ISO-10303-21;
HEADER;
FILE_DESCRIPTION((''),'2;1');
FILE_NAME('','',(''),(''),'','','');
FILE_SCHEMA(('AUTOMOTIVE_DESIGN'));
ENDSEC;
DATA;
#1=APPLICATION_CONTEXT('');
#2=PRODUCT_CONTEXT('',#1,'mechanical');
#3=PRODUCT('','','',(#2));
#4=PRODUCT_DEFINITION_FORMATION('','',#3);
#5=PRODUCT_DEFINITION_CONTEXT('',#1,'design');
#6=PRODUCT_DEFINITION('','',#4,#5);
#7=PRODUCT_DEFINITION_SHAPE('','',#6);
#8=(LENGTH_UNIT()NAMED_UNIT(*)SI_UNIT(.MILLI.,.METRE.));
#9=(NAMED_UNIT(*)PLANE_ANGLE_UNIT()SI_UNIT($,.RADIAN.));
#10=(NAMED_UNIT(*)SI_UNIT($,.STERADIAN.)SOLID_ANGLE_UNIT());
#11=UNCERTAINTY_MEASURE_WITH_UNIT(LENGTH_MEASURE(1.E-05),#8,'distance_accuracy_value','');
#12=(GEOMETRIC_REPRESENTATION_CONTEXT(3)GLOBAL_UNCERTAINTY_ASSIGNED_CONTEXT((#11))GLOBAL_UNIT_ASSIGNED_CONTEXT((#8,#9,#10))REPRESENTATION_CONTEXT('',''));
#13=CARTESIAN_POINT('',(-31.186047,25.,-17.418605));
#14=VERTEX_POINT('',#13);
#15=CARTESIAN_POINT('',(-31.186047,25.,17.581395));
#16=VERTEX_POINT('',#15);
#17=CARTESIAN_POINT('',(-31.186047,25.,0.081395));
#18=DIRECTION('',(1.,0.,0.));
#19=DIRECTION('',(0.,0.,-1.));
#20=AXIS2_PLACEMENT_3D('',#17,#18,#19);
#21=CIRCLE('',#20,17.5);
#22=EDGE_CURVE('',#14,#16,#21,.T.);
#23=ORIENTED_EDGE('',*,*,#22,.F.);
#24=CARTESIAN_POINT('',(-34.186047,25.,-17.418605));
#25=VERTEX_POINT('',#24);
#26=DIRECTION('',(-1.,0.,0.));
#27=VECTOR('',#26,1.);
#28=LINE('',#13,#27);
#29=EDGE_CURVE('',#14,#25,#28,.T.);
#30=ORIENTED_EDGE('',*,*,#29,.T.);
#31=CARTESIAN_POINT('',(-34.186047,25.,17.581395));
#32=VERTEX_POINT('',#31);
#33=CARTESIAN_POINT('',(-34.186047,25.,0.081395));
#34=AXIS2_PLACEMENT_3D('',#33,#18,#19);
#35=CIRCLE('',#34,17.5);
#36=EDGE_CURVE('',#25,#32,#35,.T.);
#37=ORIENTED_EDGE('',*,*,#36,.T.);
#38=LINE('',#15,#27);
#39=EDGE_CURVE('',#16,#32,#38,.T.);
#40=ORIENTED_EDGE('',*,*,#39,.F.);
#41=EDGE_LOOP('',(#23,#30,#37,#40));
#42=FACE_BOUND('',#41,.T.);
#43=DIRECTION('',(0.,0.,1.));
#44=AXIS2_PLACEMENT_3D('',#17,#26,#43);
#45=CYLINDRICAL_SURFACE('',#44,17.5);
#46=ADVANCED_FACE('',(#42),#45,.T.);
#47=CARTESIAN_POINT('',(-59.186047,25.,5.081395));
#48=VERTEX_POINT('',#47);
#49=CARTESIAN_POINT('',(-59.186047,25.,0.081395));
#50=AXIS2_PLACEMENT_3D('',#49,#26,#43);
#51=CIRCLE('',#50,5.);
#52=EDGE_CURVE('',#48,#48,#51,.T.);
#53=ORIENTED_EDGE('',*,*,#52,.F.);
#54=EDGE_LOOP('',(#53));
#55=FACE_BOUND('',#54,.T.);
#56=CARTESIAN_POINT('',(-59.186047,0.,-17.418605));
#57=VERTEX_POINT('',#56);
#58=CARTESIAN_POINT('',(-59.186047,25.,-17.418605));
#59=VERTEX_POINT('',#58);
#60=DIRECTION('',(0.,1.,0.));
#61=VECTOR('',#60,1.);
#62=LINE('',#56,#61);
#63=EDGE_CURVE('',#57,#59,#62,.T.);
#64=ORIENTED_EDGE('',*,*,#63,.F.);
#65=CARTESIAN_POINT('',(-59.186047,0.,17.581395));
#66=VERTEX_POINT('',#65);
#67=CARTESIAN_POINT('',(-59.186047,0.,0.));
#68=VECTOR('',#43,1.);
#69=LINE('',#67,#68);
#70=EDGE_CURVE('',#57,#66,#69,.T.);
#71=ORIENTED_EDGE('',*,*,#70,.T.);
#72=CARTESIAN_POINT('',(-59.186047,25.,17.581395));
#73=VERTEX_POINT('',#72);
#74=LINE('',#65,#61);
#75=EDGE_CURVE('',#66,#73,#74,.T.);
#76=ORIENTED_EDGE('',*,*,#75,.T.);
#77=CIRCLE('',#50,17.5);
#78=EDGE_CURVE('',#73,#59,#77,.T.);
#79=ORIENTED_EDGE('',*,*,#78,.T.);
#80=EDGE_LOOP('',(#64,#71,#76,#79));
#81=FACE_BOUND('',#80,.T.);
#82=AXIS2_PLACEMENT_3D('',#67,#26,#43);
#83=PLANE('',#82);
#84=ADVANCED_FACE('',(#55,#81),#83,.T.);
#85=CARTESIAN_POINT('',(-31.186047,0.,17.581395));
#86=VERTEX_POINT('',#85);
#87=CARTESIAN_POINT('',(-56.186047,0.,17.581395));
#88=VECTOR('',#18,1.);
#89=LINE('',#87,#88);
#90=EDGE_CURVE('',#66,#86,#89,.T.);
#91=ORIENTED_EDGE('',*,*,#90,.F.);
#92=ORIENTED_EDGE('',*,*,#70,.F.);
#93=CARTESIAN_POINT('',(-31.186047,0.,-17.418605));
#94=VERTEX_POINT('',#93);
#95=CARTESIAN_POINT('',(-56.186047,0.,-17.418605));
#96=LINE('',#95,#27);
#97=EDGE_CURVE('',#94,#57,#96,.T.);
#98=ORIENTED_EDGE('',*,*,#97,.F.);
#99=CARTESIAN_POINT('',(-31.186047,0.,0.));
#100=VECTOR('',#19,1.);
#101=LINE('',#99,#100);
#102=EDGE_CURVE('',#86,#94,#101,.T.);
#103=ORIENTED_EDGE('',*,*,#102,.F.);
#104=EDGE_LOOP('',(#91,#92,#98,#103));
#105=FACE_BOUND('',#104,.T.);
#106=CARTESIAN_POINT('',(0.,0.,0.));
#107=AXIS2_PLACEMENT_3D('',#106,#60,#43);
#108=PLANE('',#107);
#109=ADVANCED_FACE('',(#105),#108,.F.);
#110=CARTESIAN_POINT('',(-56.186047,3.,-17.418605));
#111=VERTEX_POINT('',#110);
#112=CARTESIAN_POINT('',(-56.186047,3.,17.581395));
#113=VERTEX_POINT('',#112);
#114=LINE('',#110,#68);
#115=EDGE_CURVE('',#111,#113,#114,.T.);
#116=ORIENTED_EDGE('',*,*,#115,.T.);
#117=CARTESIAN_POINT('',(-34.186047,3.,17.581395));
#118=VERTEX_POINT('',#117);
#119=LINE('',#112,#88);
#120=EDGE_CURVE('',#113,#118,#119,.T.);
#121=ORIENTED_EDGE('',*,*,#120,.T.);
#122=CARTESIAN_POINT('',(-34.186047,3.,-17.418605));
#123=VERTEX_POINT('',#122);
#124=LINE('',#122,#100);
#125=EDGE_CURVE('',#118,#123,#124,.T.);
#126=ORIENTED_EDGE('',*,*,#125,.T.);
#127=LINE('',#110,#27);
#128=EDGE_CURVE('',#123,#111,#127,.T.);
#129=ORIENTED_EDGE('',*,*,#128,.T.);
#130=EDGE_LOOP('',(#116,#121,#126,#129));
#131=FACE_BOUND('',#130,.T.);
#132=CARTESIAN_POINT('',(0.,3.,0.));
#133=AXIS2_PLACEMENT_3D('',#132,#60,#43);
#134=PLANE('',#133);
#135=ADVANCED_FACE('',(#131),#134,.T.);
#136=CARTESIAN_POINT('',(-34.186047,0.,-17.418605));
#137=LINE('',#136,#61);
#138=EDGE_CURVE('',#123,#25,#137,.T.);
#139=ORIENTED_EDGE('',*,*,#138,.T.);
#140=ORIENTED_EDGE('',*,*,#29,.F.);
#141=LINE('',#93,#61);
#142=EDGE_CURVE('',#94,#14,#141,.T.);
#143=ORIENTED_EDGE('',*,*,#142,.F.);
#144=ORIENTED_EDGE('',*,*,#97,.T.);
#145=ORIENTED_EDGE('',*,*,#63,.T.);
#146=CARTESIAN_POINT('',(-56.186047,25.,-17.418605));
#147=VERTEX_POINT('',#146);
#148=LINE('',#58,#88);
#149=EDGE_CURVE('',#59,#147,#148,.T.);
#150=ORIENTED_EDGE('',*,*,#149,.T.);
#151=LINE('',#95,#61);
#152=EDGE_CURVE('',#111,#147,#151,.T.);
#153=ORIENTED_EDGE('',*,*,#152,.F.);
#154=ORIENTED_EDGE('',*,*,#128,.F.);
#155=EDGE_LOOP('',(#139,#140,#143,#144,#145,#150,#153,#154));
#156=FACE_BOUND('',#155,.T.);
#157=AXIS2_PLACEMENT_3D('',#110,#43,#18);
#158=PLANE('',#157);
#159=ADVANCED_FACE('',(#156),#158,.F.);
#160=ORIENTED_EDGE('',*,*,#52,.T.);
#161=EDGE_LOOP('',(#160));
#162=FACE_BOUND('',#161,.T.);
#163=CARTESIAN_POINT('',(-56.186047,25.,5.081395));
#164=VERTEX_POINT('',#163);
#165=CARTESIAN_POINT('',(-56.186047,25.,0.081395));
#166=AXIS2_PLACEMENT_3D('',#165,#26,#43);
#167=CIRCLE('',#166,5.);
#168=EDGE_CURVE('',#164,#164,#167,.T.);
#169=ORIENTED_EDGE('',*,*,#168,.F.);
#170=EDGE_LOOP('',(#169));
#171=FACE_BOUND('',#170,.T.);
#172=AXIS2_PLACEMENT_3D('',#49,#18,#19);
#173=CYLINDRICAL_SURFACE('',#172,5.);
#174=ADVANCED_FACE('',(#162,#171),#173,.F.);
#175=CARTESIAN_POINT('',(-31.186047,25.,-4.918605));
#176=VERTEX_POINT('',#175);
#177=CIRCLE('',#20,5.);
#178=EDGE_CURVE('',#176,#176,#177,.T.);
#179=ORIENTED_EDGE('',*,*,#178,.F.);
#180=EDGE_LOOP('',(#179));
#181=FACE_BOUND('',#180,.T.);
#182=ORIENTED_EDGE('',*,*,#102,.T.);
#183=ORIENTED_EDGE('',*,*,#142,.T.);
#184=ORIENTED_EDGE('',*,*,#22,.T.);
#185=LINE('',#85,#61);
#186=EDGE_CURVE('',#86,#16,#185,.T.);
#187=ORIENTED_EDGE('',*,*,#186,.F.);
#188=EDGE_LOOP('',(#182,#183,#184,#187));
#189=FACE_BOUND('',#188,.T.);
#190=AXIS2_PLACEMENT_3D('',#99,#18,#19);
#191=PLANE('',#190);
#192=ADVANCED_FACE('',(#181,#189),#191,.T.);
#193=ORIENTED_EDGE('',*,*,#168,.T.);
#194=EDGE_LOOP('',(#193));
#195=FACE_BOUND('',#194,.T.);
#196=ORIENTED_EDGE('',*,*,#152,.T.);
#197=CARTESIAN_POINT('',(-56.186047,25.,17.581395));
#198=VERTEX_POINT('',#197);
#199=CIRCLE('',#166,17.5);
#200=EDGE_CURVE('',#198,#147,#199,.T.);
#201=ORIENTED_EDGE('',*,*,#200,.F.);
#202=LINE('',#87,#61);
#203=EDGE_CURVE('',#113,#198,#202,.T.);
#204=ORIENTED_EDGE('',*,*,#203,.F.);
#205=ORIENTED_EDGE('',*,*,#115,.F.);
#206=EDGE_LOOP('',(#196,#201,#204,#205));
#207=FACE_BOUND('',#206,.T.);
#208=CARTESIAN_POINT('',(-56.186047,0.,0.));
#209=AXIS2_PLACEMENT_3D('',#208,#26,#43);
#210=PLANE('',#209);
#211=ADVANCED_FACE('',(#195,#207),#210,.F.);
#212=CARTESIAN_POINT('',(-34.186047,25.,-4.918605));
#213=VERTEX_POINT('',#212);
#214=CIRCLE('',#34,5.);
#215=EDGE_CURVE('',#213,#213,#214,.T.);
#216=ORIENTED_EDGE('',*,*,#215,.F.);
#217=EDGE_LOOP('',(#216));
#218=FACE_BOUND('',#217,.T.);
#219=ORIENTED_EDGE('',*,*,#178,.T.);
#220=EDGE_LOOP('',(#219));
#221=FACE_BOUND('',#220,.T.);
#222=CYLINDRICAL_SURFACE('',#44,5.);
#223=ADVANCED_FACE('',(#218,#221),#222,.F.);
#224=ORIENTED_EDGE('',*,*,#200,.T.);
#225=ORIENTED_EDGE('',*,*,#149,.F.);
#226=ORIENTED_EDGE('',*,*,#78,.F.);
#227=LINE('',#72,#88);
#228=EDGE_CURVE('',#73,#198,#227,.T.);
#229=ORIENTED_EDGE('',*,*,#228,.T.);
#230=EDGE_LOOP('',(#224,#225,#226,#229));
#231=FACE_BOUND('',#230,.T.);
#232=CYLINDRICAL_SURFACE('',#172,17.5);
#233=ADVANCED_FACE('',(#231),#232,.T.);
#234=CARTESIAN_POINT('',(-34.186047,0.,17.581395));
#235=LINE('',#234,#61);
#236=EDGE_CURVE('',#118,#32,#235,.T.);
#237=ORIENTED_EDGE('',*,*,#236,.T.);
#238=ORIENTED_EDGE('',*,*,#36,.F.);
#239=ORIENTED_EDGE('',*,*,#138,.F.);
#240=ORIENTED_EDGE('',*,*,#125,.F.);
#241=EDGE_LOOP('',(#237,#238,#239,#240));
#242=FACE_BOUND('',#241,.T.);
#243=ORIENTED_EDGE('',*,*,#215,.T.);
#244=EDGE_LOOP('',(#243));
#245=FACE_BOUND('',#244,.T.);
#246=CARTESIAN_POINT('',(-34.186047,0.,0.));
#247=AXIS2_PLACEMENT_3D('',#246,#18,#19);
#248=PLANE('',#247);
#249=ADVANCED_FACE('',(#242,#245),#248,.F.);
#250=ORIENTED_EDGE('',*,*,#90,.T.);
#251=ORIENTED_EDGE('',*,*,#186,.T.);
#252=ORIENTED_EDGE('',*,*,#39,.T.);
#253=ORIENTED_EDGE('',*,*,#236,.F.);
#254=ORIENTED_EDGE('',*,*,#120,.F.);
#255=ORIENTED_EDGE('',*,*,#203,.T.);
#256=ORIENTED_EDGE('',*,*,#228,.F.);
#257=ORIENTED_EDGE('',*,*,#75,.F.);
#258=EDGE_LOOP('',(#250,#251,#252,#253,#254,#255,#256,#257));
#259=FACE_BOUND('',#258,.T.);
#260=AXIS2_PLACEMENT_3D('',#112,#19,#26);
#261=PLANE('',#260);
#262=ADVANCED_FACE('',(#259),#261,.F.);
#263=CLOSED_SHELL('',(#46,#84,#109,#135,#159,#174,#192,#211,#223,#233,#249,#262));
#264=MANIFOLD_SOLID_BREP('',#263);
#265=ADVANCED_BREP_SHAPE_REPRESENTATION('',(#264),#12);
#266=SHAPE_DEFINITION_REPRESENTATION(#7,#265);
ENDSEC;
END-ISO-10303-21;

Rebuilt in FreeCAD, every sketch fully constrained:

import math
import FreeCAD as App
import Part
import Sketcher

V = App.Vector
Q = App.Units.Quantity


def add_polygon(sketch, points):
    """Adds a closed chain of lines whose ends are joined by coincident constraints."""
    first, n = sketch.GeometryCount, len(points)
    for a, b in zip(points, points[1:] + points[:1]):
        sketch.addGeometry(Part.LineSegment(App.Vector(*a, 0), App.Vector(*b, 0)), False)
    for i in range(n):
        sketch.addConstraint(Sketcher.Constraint("Coincident", first + i, 2, first + (i + 1) % n, 1))

doc = App.newDocument("Part")
params = doc.addObject("Spreadsheet::Sheet", "Params")
for row, (alias, value) in enumerate([
    ("sketch1_width", "22 mm"),
    ("sketch1_height", "35 mm"),
    ("pad1_length", "3 mm"),
    ("sketch2_diameter", "10 mm"),
    ("sketch2_radius", "17.5 mm"),
    ("sketch2_width", "25 mm"),
    ("pad2_length", "3 mm"),
    ("sketch3_diameter", "10 mm"),
    ("sketch3_radius", "17.5 mm"),
    ("sketch3_width", "25 mm"),
    ("pad3_length", "3 mm"),
], start=1):
    params.set(f"A{row}", alias)
    params.set(f"B{row}", "=" + value)
    params.setAlias(f"B{row}", alias)

body = doc.addObject("PartDesign::Body", "Body")

# Sketch on XZ plane
sketch1 = body.newObject("Sketcher::SketchObject", "Sketch")
sketch1.AttachmentSupport = (doc.getObject("XZ_Plane"), [""])
sketch1.MapMode = "FlatFace"
add_polygon(sketch1, [(-56, -17), (-56, 18), (-34, 18), (-34, -17)])  # lines 0-3
sketch1.addConstraint([
    Sketcher.Constraint("Vertical", 0),
    Sketcher.Constraint("Horizontal", 1),
    Sketcher.Constraint("Vertical", 2),
    Sketcher.Constraint("Horizontal", 3),
    Sketcher.Constraint("DistanceX", 1, 1, 1, 2, Q("22 mm")),
    Sketcher.Constraint("DistanceY", 0, 1, 0, 2, Q("35 mm")),
    Sketcher.Constraint("DistanceX", 0, 2, -1, 1, Q("56.186047 mm")),
    Sketcher.Constraint("DistanceY", -1, 1, 0, 2, Q("17.581395 mm")),
])
sketch1.setExpression("Constraints[8]", "Params.sketch1_width")
sketch1.setExpression("Constraints[9]", "Params.sketch1_height")
pad1 = body.newObject("PartDesign::Pad", "Pad")
pad1.Profile = sketch1
pad1.setExpression("Length", "Params.pad1_length")
pad1.Reversed = True

# Sketch on YZ plane
sketch2 = body.newObject("Sketcher::SketchObject", "Sketch001")
sketch2.AttachmentSupport = (doc.getObject("YZ_Plane"), [""])
sketch2.MapMode = "FlatFace"
sketch2.AttachmentOffset = App.Placement(V(0, 0, -34.186047), App.Rotation())
sketch2.addGeometry([
    Part.ArcOfCircle(Part.Circle(V(25, 0, 0), V(0, 0, 1), 18), math.radians(-90), math.radians(90)),  # 0
    Part.LineSegment(V(25, 18, 0), V(0, 18, 0)),  # 1
    Part.LineSegment(V(0, 18, 0), V(0, -17, 0)),  # 2
    Part.LineSegment(V(0, -17, 0), V(25, -17, 0)),  # 3
    Part.Circle(V(25, 0, 0), V(0, 0, 1), 5),  # 4
], False)
sketch2.addConstraint([
    Sketcher.Constraint("Tangent", 0, 2, 1, 1),
    Sketcher.Constraint("Coincident", 1, 2, 2, 1),
    Sketcher.Constraint("Coincident", 2, 2, 3, 1),
    Sketcher.Constraint("Tangent", 3, 2, 0, 1),
    Sketcher.Constraint("Horizontal", 1),
    Sketcher.Constraint("Vertical", 2),
    Sketcher.Constraint("Horizontal", 3),
    Sketcher.Constraint("Coincident", 4, 3, 0, 3),
    Sketcher.Constraint("PointOnObject", 1, 2, -2),
    Sketcher.Constraint("Diameter", 4, Q("10 mm")),
    Sketcher.Constraint("Radius", 0, Q("17.5 mm")),
    Sketcher.Constraint("DistanceX", 1, 2, 1, 1, Q("25 mm")),
    Sketcher.Constraint("DistanceY", -1, 1, 0, 3, Q("0.081395 mm")),
])
sketch2.setExpression("Constraints[9]", "Params.sketch2_diameter")
sketch2.setExpression("Constraints[10]", "Params.sketch2_radius")
sketch2.setExpression("Constraints[11]", "Params.sketch2_width")
pad2 = body.newObject("PartDesign::Pad", "Pad001")
pad2.Profile = sketch2
pad2.setExpression("Length", "Params.pad2_length")

# Sketch on YZ plane
sketch3 = body.newObject("Sketcher::SketchObject", "Sketch002")
sketch3.AttachmentSupport = (doc.getObject("YZ_Plane"), [""])
sketch3.MapMode = "FlatFace"
sketch3.AttachmentOffset = App.Placement(V(0, 0, -59.186047), App.Rotation())
sketch3.addGeometry([
    Part.ArcOfCircle(Part.Circle(V(25, 0, 0), V(0, 0, 1), 18), math.radians(-90), math.radians(90)),  # 0
    Part.LineSegment(V(25, -17, 0), V(0, -17, 0)),  # 1
    Part.LineSegment(V(0, -17, 0), V(0, 18, 0)),  # 2
    Part.LineSegment(V(0, 18, 0), V(25, 18, 0)),  # 3
    Part.Circle(V(25, 0, 0), V(0, 0, 1), 5),  # 4
], False)
sketch3.addConstraint([
    Sketcher.Constraint("Tangent", 0, 1, 1, 1),
    Sketcher.Constraint("Coincident", 1, 2, 2, 1),
    Sketcher.Constraint("Coincident", 2, 2, 3, 1),
    Sketcher.Constraint("Tangent", 3, 2, 0, 2),
    Sketcher.Constraint("Horizontal", 1),
    Sketcher.Constraint("Vertical", 2),
    Sketcher.Constraint("Horizontal", 3),
    Sketcher.Constraint("Coincident", 4, 3, 0, 3),
    Sketcher.Constraint("PointOnObject", 1, 2, -2),
    Sketcher.Constraint("Diameter", 4, Q("10 mm")),
    Sketcher.Constraint("Radius", 0, Q("17.5 mm")),
    Sketcher.Constraint("DistanceX", 1, 2, 1, 1, Q("25 mm")),
    Sketcher.Constraint("DistanceY", -1, 1, 0, 3, Q("0.081395 mm")),
])
sketch3.setExpression("Constraints[9]", "Params.sketch3_diameter")
sketch3.setExpression("Constraints[10]", "Params.sketch3_radius")
sketch3.setExpression("Constraints[11]", "Params.sketch3_width")
pad3 = body.newObject("PartDesign::Pad", "Pad002")
pad3.Profile = sketch3
pad3.setExpression("Length", "Params.pad3_length")

doc.recompute()
